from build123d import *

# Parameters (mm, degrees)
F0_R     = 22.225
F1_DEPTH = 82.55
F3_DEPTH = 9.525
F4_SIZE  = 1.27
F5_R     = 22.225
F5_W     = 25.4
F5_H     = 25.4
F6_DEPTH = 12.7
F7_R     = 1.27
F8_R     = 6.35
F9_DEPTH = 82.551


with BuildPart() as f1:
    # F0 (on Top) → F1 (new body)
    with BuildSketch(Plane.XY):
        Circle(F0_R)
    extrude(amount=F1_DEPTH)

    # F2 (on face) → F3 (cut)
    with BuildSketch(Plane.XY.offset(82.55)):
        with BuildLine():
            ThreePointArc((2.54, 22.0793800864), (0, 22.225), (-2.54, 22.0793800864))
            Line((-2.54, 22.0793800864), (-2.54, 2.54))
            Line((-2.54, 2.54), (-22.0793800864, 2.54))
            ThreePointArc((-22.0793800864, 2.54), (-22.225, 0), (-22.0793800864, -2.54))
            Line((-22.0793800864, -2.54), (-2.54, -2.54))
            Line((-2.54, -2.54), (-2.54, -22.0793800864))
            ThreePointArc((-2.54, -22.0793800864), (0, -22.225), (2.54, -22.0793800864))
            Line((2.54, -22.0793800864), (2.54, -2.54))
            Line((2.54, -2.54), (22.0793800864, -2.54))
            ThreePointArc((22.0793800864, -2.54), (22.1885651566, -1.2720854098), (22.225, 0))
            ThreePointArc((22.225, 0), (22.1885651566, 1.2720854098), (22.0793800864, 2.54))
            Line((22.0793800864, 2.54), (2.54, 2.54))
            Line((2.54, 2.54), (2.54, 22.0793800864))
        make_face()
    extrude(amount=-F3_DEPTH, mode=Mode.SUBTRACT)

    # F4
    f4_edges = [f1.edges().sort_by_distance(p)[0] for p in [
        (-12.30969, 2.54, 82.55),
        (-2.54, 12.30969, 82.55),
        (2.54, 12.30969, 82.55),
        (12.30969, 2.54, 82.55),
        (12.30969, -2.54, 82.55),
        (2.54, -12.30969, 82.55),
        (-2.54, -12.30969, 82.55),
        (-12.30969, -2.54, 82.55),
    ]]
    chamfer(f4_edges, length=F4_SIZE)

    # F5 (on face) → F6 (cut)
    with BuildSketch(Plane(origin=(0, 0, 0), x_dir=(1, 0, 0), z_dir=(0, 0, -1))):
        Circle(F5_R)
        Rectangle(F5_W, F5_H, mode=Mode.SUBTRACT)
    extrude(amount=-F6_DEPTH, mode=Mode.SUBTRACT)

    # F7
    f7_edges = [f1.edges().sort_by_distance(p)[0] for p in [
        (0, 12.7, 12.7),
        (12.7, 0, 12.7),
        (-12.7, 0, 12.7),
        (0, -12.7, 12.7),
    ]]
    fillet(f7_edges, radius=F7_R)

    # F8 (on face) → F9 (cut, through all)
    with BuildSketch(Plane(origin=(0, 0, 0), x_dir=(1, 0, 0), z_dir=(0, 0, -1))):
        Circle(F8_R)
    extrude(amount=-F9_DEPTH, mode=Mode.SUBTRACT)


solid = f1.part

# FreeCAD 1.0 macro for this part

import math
import FreeCAD as App
import Part
import Sketcher
Q = App.Units.Quantity


def edges_at(feature, points):
    """Names of the edges that pass closest to the given points."""
    edges = feature.Shape.Edges
    near = lambda p: min(range(len(edges)), key=lambda i: edges[i].distToShape(Part.Vertex(*p))[0])
    return sorted({f"Edge{near(p) + 1}" for p in points})


def add_polygon(sketch, points):
    """Adds a closed chain of lines whose ends are joined by coincident constraints."""
    first, n = sketch.GeometryCount, len(points)
    for a, b in zip(points, points[1:] + points[:1]):
        sketch.addGeometry(Part.LineSegment(App.Vector(*a, 0), App.Vector(*b, 0)), False)
    for i in range(n):
        sketch.addConstraint(Sketcher.Constraint("Coincident", first + i, 2, first + (i + 1) % n, 1))

doc = App.newDocument("Part")
params = doc.addObject("Spreadsheet::Sheet", "Params")
for row, (alias, value) in enumerate([
    ("sketch1_diameter", "1.75 in"),
    ("pad1_length", "3.25 in"),
    ("sketch2_radius", "0.875 in"),
    ("pocket1_length", "0.375 in"),
    ("chamfer_size", "0.05 in"),
    ("sketch3_diameter", "1.75 in"),
    ("sketch3_width", "1 in"),
    ("pocket2_length", "0.5 in"),
    ("fillet_radius", "0.05 in"),
    ("sketch4_diameter", "0.5 in"),
], start=1):
    params.set(f"A{row}", alias)
    params.set(f"B{row}", "=" + value)
    params.setAlias(f"B{row}", alias)

body = doc.addObject("PartDesign::Body", "Body")

# Sketch on XY plane
sketch1 = doc.addObject("Sketcher::SketchObject", "Sketch")
body.addObject(sketch1)
sketch1.AttachmentSupport = (doc.XY_Plane, [""])
sketch1.MapMode = "FlatFace"
sketch1.addGeometry(Part.Circle(App.Vector(0, 0, 0), App.Vector(0, 0, 1), 22.225), False)
sketch1.addConstraint([
    Sketcher.Constraint("Coincident", 0, 3, -1, 1),
    Sketcher.Constraint("Diameter", 0, Q("1.75 in")),
])
sketch1.setExpression("Constraints[1]", "Params.sketch1_diameter")
pad1 = doc.addObject("PartDesign::Pad", "Pad")
body.addObject(pad1)
pad1.Profile = sketch1
pad1.setExpression("Length", "Params.pad1_length")

# Sketch on XY plane
sketch2 = doc.addObject("Sketcher::SketchObject", "Sketch001")
body.addObject(sketch2)
sketch2.AttachmentSupport = (doc.XY_Plane, [""])
sketch2.MapMode = "FlatFace"
sketch2.AttachmentOffset = App.Placement(App.Vector(0, 0, 3.25 * 25.4), App.Rotation())
sketch2.addGeometry([
    Part.ArcOfCircle(Part.Circle(App.Vector(0, 0, 0), App.Vector(0, 0, 1), 22.225), math.radians(83.437572), math.radians(96.562428)),  # 0
    Part.LineSegment(App.Vector(-2.54, 22.07938, 0), App.Vector(-2.54, 2.54, 0)),  # 1
    Part.LineSegment(App.Vector(-2.54, 2.54, 0), App.Vector(-22.07938, 2.54, 0)),  # 2
    Part.ArcOfCircle(Part.Circle(App.Vector(0, 0, 0), App.Vector(0, 0, 1), 22.225), math.radians(173.437572), math.radians(186.562428)),  # 3
    Part.LineSegment(App.Vector(-22.07938, -2.54, 0), App.Vector(-2.54, -2.54, 0)),  # 4
    Part.LineSegment(App.Vector(-2.54, -2.54, 0), App.Vector(-2.54, -22.07938, 0)),  # 5
    Part.ArcOfCircle(Part.Circle(App.Vector(0, 0, 0), App.Vector(0, 0, 1), 22.225), math.radians(-96.562428), math.radians(-83.437572)),  # 6
    Part.LineSegment(App.Vector(2.54, -22.07938, 0), App.Vector(2.54, -2.54, 0)),  # 7
    Part.LineSegment(App.Vector(2.54, -2.54, 0), App.Vector(22.07938, -2.54, 0)),  # 8
    Part.ArcOfCircle(Part.Circle(App.Vector(0, 0, 0), App.Vector(0, 0, 1), 22.225), math.radians(-6.562428), math.radians(0)),  # 9
    Part.ArcOfCircle(Part.Circle(App.Vector(0, 0, 0), App.Vector(0, 0, 1), 22.225), math.radians(0), math.radians(6.562428)),  # 10
    Part.LineSegment(App.Vector(22.07938, 2.54, 0), App.Vector(2.54, 2.54, 0)),  # 11
    Part.LineSegment(App.Vector(2.54, 2.54, 0), App.Vector(2.54, 22.07938, 0)),  # 12
], False)
sketch2.addConstraint([
    Sketcher.Constraint("Coincident", 0, 2, 1, 1),
    Sketcher.Constraint("Coincident", 1, 2, 2, 1),
    Sketcher.Constraint("Coincident", 2, 2, 3, 1),
    Sketcher.Constraint("Coincident", 3, 2, 4, 1),
    Sketcher.Constraint("Coincident", 4, 2, 5, 1),
    Sketcher.Constraint("Coincident", 5, 2, 6, 1),
    Sketcher.Constraint("Coincident", 6, 2, 7, 1),
    Sketcher.Constraint("Coincident", 7, 2, 8, 1),
    Sketcher.Constraint("Coincident", 8, 2, 9, 1),
    Sketcher.Constraint("Tangent", 9, 2, 10, 1),
    Sketcher.Constraint("Coincident", 10, 2, 11, 1),
    Sketcher.Constraint("Coincident", 11, 2, 12, 1),
    Sketcher.Constraint("Coincident", 12, 2, 0, 1),
    Sketcher.Constraint("Vertical", 1),
    Sketcher.Constraint("Horizontal", 2),
    Sketcher.Constraint("Horizontal", 4),
    Sketcher.Constraint("Vertical", 5),
    Sketcher.Constraint("Vertical", 7),
    Sketcher.Constraint("Horizontal", 8),
    Sketcher.Constraint("Horizontal", 11),
    Sketcher.Constraint("Vertical", 12),
    Sketcher.Constraint("Coincident", 0, 3, -1, 1),
    Sketcher.Constraint("Coincident", 3, 3, -1, 1),
    Sketcher.Constraint("Coincident", 6, 3, -1, 1),
    Sketcher.Constraint("Coincident", 9, 3, -1, 1),
    Sketcher.Constraint("Equal", 0, 3),
    Sketcher.Constraint("Equal", 3, 6),
    Sketcher.Constraint("Equal", 6, 9),
    Sketcher.Constraint("Equal", 9, 10),
    Sketcher.Constraint("Symmetric", 1, 2, 7, 2, -1, 1),
    Sketcher.Constraint("Symmetric", 4, 2, 11, 2, -1, 1),
    Sketcher.Constraint("Symmetric", 4, 2, 7, 2, -2),
    Sketcher.Constraint("PointOnObject", 9, 2, -1),
    Sketcher.Constraint("Equal", 11, 1),
    Sketcher.Constraint("Radius", 0, Q("0.875 in")),
    Sketcher.Constraint("DistanceX", 0, 2, -1, 1, Q("0.1 in")),
])
sketch2.setExpression("Constraints[34]", "Params.sketch2_radius")
pocket1 = doc.addObject("PartDesign::Pocket", "Pocket")
body.addObject(pocket1)
pocket1.Profile = sketch2
pocket1.setExpression("Length", "Params.pocket1_length")
doc.recompute()

chamfer = doc.addObject("PartDesign::Chamfer", "Chamfer")
body.addObject(chamfer)
chamfer.Base = (pocket1, edges_at(pocket1, [
    (-12.31, 2.54, 82.55),
    (-2.54, 12.31, 82.55),
    (2.54, 12.31, 82.55),
    (12.31, 2.54, 82.55),
    (12.31, -2.54, 82.55),
    (2.54, -12.31, 82.55),
    (-2.54, -12.31, 82.55),
    (-12.31, -2.54, 82.55),
]))
chamfer.setExpression("Size", "Params.chamfer_size")

# Sketch on XY plane
sketch3 = doc.addObject("Sketcher::SketchObject", "Sketch002")
body.addObject(sketch3)
sketch3.AttachmentSupport = (doc.XY_Plane, [""])
sketch3.MapMode = "FlatFace"
sketch3.addGeometry(Part.Circle(App.Vector(0, 0, 0), App.Vector(0, 0, 1), 22.225), False)  # 0
add_polygon(sketch3, [(12.7, 12.7), (-12.7, 12.7), (-12.7, -12.7), (12.7, -12.7)])  # lines 1-4
sketch3.addConstraint([
    Sketcher.Constraint("Horizontal", 1),
    Sketcher.Constraint("Vertical", 2),
    Sketcher.Constraint("Horizontal", 3),
    Sketcher.Constraint("Vertical", 4),
    Sketcher.Constraint("Coincident", 0, 3, -1, 1),
    Sketcher.Constraint("Symmetric", 1, 2, 3, 2, -1, 1),
    Sketcher.Constraint("Equal", 3, 2),
    Sketcher.Constraint("Diameter", 0, Q("1.75 in")),
    Sketcher.Constraint("DistanceX", 1, 2, 1, 1, Q("1 in")),
])
sketch3.setExpression("Constraints[11]", "Params.sketch3_diameter")
sketch3.setExpression("Constraints[12]", "Params.sketch3_width")
pocket2 = doc.addObject("PartDesign::Pocket", "Pocket001")
body.addObject(pocket2)
pocket2.Profile = sketch3
pocket2.setExpression("Length", "Params.pocket2_length")
pocket2.Reversed = True
doc.recompute()

fillet = doc.addObject("PartDesign::Fillet", "Fillet")
body.addObject(fillet)
fillet.Base = (pocket2, edges_at(pocket2, [
    (0, 12.7, 12.7),
    (12.7, 0, 12.7),
    (-12.7, 0, 12.7),
    (0, -12.7, 12.7),
]))
fillet.setExpression("Radius", "Params.fillet_radius")

# Sketch on XY plane
sketch4 = doc.addObject("Sketcher::SketchObject", "Sketch003")
body.addObject(sketch4)
sketch4.AttachmentSupport = (doc.XY_Plane, [""])
sketch4.MapMode = "FlatFace"
sketch4.addGeometry(Part.Circle(App.Vector(0, 0, 0), App.Vector(0, 0, 1), 6.35), False)
sketch4.addConstraint([
    Sketcher.Constraint("Coincident", 0, 3, -1, 1),
    Sketcher.Constraint("Diameter", 0, Q("0.5 in")),
])
sketch4.setExpression("Constraints[1]", "Params.sketch4_diameter")
pocket3 = doc.addObject("PartDesign::Pocket", "Pocket002")
body.addObject(pocket3)
pocket3.Profile = sketch4
pocket3.Type = "ThroughAll"
pocket3.Reversed = True

doc.recompute()
